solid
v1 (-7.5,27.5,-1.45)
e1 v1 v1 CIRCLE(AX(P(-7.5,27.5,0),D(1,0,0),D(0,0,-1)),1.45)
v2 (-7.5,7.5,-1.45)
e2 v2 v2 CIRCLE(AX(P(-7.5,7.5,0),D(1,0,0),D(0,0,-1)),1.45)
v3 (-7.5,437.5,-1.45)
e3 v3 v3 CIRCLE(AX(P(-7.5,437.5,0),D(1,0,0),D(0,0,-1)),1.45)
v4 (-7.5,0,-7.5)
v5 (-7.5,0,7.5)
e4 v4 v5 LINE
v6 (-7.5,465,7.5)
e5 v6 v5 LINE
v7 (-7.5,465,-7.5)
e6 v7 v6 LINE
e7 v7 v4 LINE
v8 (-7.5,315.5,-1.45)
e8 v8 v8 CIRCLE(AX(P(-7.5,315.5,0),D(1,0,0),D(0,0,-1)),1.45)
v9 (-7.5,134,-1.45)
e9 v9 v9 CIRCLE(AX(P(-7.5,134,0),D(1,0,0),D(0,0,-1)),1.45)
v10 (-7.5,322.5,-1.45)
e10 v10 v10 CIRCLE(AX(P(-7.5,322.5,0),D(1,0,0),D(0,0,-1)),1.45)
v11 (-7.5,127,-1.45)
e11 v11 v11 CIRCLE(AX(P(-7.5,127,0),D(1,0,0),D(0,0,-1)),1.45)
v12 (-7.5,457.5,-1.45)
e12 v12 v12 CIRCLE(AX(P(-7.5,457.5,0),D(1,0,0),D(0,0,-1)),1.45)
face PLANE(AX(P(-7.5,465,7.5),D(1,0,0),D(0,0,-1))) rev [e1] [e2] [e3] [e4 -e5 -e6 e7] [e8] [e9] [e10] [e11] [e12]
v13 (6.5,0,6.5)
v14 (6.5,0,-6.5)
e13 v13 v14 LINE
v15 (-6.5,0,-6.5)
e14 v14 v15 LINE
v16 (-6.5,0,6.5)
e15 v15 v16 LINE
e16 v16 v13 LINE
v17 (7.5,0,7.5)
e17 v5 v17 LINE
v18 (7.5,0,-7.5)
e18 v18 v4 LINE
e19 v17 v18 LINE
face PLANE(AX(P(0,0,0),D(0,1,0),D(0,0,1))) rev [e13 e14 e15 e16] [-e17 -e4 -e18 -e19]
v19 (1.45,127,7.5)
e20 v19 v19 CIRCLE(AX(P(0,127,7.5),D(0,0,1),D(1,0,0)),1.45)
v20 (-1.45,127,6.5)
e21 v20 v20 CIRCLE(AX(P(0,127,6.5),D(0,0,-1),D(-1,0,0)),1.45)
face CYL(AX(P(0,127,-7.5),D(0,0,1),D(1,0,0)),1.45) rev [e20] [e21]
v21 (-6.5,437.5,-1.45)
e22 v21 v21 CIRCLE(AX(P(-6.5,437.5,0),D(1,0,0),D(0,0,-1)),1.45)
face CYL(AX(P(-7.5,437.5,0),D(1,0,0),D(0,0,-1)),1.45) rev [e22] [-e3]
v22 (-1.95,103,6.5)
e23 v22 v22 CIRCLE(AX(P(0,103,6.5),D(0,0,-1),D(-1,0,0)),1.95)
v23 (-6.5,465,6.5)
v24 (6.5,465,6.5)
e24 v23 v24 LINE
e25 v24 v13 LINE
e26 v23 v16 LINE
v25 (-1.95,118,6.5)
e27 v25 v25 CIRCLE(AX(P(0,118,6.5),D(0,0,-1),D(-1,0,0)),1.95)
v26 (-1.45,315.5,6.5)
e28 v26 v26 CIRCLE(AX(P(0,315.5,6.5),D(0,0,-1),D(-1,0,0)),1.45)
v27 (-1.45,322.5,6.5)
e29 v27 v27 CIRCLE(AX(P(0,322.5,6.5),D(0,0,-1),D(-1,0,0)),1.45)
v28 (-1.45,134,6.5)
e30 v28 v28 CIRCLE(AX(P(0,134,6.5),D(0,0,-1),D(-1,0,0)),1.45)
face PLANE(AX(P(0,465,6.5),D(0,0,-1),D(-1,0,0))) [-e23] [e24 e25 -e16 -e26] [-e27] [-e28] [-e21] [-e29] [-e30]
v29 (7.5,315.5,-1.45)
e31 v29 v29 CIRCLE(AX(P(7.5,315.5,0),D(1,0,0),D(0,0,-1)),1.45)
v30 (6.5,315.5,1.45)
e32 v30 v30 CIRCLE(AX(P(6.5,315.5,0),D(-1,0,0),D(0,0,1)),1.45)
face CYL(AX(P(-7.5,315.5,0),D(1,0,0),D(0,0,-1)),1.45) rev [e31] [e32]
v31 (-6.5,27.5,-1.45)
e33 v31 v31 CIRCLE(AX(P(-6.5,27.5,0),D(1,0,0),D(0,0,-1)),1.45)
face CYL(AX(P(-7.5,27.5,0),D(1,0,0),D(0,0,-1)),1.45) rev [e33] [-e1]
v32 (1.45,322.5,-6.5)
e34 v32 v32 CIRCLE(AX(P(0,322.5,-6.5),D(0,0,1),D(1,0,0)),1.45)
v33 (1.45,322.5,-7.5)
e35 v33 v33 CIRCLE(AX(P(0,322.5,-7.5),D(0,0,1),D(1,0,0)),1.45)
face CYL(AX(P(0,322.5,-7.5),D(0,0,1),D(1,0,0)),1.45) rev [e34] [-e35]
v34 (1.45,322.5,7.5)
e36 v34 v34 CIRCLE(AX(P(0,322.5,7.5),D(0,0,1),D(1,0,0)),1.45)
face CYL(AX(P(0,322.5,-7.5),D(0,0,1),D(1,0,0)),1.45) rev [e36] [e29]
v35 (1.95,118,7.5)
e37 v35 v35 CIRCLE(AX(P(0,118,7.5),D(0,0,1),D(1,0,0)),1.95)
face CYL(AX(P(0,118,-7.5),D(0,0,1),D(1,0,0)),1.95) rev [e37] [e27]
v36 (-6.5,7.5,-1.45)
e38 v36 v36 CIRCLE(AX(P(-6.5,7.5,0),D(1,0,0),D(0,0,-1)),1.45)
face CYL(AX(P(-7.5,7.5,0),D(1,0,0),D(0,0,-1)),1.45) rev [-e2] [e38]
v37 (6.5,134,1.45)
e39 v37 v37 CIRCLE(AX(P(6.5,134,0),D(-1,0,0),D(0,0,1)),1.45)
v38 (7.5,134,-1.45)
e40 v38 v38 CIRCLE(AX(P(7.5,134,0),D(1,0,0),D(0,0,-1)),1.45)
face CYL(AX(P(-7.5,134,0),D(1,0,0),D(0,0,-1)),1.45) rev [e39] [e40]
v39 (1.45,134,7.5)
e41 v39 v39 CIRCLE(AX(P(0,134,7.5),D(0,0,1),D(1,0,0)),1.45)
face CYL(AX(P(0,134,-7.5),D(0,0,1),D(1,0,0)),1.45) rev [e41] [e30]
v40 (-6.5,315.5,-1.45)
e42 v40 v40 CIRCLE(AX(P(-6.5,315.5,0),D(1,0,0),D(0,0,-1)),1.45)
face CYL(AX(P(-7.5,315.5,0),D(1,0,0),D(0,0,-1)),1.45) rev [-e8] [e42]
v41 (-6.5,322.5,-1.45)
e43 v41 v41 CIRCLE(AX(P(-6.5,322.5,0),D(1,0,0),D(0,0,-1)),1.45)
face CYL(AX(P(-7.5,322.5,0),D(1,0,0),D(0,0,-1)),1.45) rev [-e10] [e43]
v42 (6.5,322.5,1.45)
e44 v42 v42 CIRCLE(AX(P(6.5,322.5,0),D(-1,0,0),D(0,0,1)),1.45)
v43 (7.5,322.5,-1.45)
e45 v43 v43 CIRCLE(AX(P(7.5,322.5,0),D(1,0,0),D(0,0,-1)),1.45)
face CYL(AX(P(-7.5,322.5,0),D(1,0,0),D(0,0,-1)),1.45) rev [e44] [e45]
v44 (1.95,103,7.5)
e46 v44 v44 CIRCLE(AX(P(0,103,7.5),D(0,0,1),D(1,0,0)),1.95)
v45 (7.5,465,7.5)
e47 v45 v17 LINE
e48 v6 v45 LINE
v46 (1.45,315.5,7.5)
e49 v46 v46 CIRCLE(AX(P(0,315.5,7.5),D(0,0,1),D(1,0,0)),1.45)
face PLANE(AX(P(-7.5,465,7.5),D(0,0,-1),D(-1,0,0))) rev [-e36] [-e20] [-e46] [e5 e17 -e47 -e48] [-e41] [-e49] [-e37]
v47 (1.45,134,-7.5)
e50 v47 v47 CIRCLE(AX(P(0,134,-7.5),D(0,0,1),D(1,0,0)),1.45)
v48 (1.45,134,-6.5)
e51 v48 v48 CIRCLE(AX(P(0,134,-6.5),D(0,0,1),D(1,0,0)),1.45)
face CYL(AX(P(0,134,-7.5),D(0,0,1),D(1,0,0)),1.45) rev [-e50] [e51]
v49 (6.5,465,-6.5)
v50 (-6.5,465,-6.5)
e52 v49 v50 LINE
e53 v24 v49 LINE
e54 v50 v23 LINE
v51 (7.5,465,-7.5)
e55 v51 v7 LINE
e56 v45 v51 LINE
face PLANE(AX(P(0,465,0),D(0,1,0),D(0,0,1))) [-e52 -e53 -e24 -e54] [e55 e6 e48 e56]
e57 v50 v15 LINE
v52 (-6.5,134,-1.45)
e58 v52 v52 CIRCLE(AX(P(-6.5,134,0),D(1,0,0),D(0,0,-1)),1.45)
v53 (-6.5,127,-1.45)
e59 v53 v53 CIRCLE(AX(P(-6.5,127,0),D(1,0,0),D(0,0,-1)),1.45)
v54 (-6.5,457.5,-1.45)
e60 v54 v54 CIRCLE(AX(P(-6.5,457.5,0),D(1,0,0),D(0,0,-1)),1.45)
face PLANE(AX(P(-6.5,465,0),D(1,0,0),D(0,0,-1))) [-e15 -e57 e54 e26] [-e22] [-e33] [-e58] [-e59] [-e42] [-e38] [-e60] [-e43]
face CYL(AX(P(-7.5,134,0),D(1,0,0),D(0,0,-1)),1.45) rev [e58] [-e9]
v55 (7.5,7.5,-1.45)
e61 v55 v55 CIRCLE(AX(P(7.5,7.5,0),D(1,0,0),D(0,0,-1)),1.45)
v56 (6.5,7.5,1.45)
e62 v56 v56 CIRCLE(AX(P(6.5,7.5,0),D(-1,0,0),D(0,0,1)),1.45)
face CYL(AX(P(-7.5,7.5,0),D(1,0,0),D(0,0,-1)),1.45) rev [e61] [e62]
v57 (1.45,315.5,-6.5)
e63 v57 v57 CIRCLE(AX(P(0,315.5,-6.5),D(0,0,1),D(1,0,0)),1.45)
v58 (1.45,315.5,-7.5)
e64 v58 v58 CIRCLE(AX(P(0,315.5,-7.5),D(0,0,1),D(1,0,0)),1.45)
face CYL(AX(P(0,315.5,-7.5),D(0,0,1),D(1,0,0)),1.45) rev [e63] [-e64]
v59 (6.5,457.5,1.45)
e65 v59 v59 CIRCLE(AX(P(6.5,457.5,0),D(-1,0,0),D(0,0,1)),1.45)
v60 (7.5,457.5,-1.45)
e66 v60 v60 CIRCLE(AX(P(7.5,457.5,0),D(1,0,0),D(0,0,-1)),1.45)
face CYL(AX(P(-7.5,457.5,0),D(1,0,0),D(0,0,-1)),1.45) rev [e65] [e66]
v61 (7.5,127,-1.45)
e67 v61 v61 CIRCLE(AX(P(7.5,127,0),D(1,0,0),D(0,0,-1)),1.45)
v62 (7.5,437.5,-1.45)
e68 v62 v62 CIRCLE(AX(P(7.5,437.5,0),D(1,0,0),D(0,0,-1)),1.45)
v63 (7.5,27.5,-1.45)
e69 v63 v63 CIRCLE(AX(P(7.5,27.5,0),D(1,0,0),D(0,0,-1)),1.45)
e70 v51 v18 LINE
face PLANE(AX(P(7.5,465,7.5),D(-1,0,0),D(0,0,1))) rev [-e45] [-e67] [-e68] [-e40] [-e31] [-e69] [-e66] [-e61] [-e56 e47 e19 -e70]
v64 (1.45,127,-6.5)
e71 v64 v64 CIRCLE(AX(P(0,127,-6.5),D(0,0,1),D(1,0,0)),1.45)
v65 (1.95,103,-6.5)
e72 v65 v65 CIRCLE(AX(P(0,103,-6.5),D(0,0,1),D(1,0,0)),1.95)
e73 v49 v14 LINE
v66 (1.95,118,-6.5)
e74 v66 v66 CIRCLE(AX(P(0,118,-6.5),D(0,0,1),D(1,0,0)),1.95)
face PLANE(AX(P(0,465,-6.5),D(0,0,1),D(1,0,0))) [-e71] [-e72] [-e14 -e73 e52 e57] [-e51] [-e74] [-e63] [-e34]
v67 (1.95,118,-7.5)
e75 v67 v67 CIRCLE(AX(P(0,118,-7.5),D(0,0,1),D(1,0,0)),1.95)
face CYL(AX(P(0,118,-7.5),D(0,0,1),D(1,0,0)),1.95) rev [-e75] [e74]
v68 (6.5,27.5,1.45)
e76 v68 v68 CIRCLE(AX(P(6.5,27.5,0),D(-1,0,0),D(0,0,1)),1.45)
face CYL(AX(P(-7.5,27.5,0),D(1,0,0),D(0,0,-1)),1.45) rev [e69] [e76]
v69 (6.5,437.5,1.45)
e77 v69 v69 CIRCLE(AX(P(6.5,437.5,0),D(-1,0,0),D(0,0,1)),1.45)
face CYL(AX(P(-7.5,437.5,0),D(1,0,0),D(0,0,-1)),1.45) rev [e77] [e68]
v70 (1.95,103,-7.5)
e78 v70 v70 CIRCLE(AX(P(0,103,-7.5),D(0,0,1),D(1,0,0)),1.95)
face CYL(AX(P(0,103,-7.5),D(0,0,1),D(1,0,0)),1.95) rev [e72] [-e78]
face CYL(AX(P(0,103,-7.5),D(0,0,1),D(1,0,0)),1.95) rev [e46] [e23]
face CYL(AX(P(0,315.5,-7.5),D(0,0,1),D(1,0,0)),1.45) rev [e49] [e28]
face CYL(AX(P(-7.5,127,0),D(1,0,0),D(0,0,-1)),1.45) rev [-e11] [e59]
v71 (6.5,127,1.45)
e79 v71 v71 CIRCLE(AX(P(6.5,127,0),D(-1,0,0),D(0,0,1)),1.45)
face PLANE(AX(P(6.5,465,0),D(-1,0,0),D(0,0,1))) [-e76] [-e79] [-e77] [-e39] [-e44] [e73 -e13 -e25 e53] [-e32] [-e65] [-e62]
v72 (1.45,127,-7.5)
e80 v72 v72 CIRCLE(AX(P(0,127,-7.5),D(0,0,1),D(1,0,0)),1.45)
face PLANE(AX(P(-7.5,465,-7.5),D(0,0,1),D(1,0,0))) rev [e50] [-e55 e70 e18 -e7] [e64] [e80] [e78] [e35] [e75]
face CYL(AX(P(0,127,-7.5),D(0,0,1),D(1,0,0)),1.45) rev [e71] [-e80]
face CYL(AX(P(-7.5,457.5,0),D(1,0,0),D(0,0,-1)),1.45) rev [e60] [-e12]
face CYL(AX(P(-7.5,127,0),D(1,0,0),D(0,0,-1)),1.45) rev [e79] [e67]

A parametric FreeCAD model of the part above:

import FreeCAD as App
import Part
import Sketcher

V = App.Vector


def add_polygon(sketch, points):
    """Adds a closed chain of lines whose ends are joined by coincident constraints."""
    first, n = sketch.GeometryCount, len(points)
    for a, b in zip(points, points[1:] + points[:1]):
        sketch.addGeometry(Part.LineSegment(App.Vector(*a, 0), App.Vector(*b, 0)), False)
    for i in range(n):
        sketch.addConstraint(Sketcher.Constraint("Coincident", first + i, 2, first + (i + 1) % n, 1))

doc = App.newDocument("Part")
body = doc.addObject("PartDesign::Body", "Body")

sketch1 = doc.addObject("Sketcher::SketchObject", "Sketch")
body.addObject(sketch1)
sketch1.AttachmentSupport = (doc.XZ_Plane, [""])
sketch1.MapMode = "FlatFace"
add_polygon(sketch1, [(-7.5, -7.5), (-7.5, 7.5), (7.5, 7.5), (7.5, -7.5)])
add_polygon(sketch1, [(6.5, 6.5), (-6.5, 6.5), (-6.5, -6.5), (6.5, -6.5)])
sketch1.addConstraint([
    Sketcher.Constraint("Vertical", 0),
    Sketcher.Constraint("Horizontal", 1),
    Sketcher.Constraint("Vertical", 2),
    Sketcher.Constraint("Horizontal", 3),
    Sketcher.Constraint("Horizontal", 4),
    Sketcher.Constraint("Vertical", 5),
    Sketcher.Constraint("Horizontal", 6),
    Sketcher.Constraint("Vertical", 7),
    Sketcher.Constraint("Symmetric", 0, 2, 2, 2, -1, 1),
    Sketcher.Constraint("Symmetric", 4, 2, 6, 2, -1, 1),
    Sketcher.Constraint("Equal", 3, 0),
    Sketcher.Constraint("Equal", 6, 5),
    Sketcher.Constraint("DistanceX", 1, 1, 1, 2, 15.0),
    Sketcher.Constraint("DistanceX", 4, 2, 4, 1, 13.0),
])
pad1 = doc.addObject("PartDesign::Pad", "Pad")
body.addObject(pad1)
pad1.Profile = sketch1
pad1.Length = 465
pad1.Reversed = True

sketch2 = doc.addObject("Sketcher::SketchObject", "Sketch001")
body.addObject(sketch2)
sketch2.AttachmentSupport = (doc.XY_Plane, [""])
sketch2.MapMode = "FlatFace"
sketch2.AttachmentOffset = App.Placement(V(0, 0, 7.5), App.Rotation())
sketch2.addGeometry([
    Part.Circle(V(0, 118, 0), V(0, 0, 1), 1.95),
    Part.Circle(V(0, 103, 0), V(0, 0, 1), 1.95),
    Part.Circle(V(0, 134, 0), V(0, 0, 1), 1.45),
    Part.Circle(V(0, 127, 0), V(0, 0, 1), 1.45),
    Part.Circle(V(0, 322.5, 0), V(0, 0, 1), 1.45),
    Part.Circle(V(0, 315.5, 0), V(0, 0, 1), 1.45),
], False)
sketch2.addConstraint([
    Sketcher.Constraint("Equal", 0, 1),
    Sketcher.Constraint("Equal", 2, 3),
    Sketcher.Constraint("Equal", 3, 4),
    Sketcher.Constraint("Equal", 4, 5),
    Sketcher.Constraint("PointOnObject", 0, 3, -2),
    Sketcher.Constraint("PointOnObject", 1, 3, -2),
    Sketcher.Constraint("PointOnObject", 2, 3, -2),
    Sketcher.Constraint("PointOnObject", 3, 3, -2),
    Sketcher.Constraint("PointOnObject", 4, 3, -2),
    Sketcher.Constraint("PointOnObject", 5, 3, -2),
    Sketcher.Constraint("Diameter", 0, 3.9),
    Sketcher.Constraint("Diameter", 2, 2.9),
    Sketcher.Constraint("DistanceY", -1, 1, 0, 3, 118.0),
    Sketcher.Constraint("DistanceY", -1, 1, 1, 3, 103.0),
    Sketcher.Constraint("DistanceY", -1, 1, 2, 3, 134.0),
    Sketcher.Constraint("DistanceY", -1, 1, 3, 3, 127.0),
    Sketcher.Constraint("DistanceY", 5, 3, 4, 3, 7.0),
    Sketcher.Constraint("DistanceY", -1, 1, 4, 3, 322.5),
])
pocket1 = doc.addObject("PartDesign::Pocket", "Pocket")
body.addObject(pocket1)
pocket1.Profile = sketch2
pocket1.Type = "ThroughAll"

sketch3 = doc.addObject("Sketcher::SketchObject", "Sketch002")
body.addObject(sketch3)
sketch3.AttachmentSupport = (doc.YZ_Plane, [""])
sketch3.MapMode = "FlatFace"
sketch3.AttachmentOffset = App.Placement(V(0, 0, 7.5), App.Rotation())
sketch3.addGeometry([
    Part.Circle(V(457.5, 0, 0), V(0, 0, 1), 1.45),
    Part.Circle(V(437.5, 0, 0), V(0, 0, 1), 1.45),
    Part.Circle(V(134, 0, 0), V(0, 0, 1), 1.45),
    Part.Circle(V(127, 0, 0), V(0, 0, 1), 1.45),
    Part.Circle(V(315.5, 0, 0), V(0, 0, 1), 1.45),
    Part.Circle(V(322.5, 0, 0), V(0, 0, 1), 1.45),
    Part.Circle(V(7.5, 0, 0), V(0, 0, 1), 1.45),
    Part.Circle(V(27.5, 0, 0), V(0, 0, 1), 1.45),
], False)
sketch3.addConstraint([
    Sketcher.Constraint("Equal", 0, 1),
    Sketcher.Constraint("Equal", 1, 2),
    Sketcher.Constraint("Equal", 2, 3),
    Sketcher.Constraint("Equal", 3, 4),
    Sketcher.Constraint("Equal", 4, 5),
    Sketcher.Constraint("Equal", 5, 6),
    Sketcher.Constraint("Equal", 6, 7),
    Sketcher.Constraint("PointOnObject", 0, 3, -1),
    Sketcher.Constraint("PointOnObject", 1, 3, -1),
    Sketcher.Constraint("PointOnObject", 2, 3, -1),
    Sketcher.Constraint("PointOnObject", 3, 3, -1),
    Sketcher.Constraint("PointOnObject", 4, 3, -1),
    Sketcher.Constraint("PointOnObject", 5, 3, -1),
    Sketcher.Constraint("PointOnObject", 6, 3, -1),
    Sketcher.Constraint("PointOnObject", 7, 3, -1),
    Sketcher.Constraint("Diameter", 0, 2.9),
    Sketcher.Constraint("DistanceX", -1, 1, 2, 3, 134.0),
    Sketcher.Constraint("DistanceX", -1, 1, 3, 3, 127.0),
    Sketcher.Constraint("DistanceX", 1, 3, 0, 3, 20.0),
    Sketcher.Constraint("DistanceX", 4, 3, 1, 3, 122.0),
    Sketcher.Constraint("DistanceX", 4, 3, 5, 3, 7.0),
    Sketcher.Constraint("DistanceX", 6, 3, 4, 3, 308.0),
    Sketcher.Constraint("DistanceX", 6, 3, 7, 3, 20.0),
    Sketcher.Constraint("DistanceX", -1, 1, 0, 3, 457.5),
])
pocket2 = doc.addObject("PartDesign::Pocket", "Pocket001")
body.addObject(pocket2)
pocket2.Profile = sketch3
pocket2.Type = "ThroughAll"

doc.recompute()
